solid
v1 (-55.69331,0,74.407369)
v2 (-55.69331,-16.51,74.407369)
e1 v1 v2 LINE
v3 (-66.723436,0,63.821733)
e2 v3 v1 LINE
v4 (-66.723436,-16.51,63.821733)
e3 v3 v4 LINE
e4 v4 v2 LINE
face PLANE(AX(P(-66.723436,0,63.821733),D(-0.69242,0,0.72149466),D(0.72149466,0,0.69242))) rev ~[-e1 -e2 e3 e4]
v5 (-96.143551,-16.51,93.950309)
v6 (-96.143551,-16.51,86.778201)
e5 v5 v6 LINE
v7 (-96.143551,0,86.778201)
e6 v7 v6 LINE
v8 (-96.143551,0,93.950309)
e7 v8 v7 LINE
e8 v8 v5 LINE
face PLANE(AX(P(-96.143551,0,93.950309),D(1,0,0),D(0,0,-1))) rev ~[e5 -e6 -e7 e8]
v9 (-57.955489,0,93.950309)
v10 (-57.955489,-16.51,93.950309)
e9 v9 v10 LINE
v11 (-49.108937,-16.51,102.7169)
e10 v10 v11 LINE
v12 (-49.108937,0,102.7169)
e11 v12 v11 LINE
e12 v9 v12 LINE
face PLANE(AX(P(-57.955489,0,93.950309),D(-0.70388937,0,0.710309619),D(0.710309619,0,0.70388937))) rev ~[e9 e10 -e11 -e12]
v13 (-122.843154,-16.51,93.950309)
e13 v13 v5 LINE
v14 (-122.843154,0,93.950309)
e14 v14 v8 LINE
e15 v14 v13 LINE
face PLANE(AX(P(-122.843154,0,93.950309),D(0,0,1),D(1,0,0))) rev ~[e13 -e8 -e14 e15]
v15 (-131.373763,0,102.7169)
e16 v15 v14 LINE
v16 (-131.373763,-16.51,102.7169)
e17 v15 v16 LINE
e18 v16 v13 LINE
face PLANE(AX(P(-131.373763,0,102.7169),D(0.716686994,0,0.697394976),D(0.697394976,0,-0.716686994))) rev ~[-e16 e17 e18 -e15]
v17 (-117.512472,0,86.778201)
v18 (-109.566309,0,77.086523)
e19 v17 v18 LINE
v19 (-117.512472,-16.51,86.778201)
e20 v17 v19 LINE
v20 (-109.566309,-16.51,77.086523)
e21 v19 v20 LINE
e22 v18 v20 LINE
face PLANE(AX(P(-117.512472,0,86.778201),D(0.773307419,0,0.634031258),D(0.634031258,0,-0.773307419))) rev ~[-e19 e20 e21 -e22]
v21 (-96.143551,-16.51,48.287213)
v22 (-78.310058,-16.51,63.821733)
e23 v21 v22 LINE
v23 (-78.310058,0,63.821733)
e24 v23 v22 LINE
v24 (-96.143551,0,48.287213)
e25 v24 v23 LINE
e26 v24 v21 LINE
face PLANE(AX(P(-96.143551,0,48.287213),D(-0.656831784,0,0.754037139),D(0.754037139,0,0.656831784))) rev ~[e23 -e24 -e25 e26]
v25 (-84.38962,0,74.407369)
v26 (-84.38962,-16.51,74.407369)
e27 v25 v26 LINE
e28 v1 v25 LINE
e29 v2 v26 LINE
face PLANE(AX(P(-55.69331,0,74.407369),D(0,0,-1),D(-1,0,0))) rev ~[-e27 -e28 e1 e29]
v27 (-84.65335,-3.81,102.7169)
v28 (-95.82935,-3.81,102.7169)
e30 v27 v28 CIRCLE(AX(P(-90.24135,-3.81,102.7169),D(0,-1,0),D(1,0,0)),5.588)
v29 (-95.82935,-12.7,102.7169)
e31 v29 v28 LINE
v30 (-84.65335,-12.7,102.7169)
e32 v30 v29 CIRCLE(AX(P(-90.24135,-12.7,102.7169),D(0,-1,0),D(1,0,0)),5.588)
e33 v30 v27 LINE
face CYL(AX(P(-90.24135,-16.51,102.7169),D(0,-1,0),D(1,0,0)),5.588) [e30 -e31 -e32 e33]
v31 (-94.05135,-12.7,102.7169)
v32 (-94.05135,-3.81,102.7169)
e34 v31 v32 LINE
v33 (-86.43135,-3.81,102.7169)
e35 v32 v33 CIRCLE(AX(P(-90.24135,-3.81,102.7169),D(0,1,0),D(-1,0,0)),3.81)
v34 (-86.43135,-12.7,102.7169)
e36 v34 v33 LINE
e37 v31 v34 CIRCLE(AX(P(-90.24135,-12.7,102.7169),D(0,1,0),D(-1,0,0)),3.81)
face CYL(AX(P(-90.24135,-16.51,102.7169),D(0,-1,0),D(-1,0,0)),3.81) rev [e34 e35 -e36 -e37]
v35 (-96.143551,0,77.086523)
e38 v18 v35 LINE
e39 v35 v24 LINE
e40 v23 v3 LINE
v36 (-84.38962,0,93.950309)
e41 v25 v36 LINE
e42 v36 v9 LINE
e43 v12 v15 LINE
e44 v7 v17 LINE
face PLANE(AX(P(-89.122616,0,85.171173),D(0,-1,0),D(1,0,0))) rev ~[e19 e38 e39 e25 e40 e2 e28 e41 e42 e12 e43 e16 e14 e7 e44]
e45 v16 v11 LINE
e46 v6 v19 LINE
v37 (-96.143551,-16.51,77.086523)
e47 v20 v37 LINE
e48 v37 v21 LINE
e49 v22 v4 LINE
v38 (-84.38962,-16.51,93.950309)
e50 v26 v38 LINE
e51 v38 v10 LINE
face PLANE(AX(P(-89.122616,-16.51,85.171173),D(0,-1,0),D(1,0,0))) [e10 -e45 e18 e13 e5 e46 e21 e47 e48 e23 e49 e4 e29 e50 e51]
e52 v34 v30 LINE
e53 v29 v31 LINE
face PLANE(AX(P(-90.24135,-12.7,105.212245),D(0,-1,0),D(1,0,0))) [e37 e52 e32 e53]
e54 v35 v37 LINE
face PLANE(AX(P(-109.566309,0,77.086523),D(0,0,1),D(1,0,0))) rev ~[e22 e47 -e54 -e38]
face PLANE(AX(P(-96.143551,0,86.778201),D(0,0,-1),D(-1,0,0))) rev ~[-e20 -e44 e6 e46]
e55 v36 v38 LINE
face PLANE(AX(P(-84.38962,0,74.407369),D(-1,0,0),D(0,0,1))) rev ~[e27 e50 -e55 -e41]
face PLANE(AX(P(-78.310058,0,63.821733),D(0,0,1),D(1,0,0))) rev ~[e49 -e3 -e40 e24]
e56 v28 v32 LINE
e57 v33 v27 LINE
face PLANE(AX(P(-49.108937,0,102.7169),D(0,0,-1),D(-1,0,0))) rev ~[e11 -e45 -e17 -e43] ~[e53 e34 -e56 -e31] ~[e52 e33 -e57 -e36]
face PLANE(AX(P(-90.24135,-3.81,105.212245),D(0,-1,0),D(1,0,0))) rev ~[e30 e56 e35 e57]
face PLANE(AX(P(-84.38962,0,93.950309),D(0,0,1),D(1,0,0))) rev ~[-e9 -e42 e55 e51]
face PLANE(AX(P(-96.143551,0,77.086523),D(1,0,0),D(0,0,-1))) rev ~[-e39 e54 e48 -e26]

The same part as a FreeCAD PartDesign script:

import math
import FreeCAD as App
import Part
import Sketcher
Q = App.Units.Quantity

doc = App.newDocument("Part")
body = doc.addObject("PartDesign::Body", "Body")

# Sketch on XZ plane
sketch1 = doc.addObject("Sketcher::SketchObject", "Sketch")
body.addObject(sketch1)
sketch1.AttachmentSupport = (doc.XZ_Plane, [""])
sketch1.MapMode = "FlatFace"
sketch1.addGeometry(Part.LineSegment(App.Vector(-49.108937, 102.7169, 0), App.Vector(-131.373763, 102.7169, 0)), False)
sketch1.addGeometry(Part.LineSegment(App.Vector(-131.373763, 102.7169, 0), App.Vector(-122.843154, 93.950309, 0)), False)
sketch1.addGeometry(Part.LineSegment(App.Vector(-122.843154, 93.950309, 0), App.Vector(-96.143551, 93.950309, 0)), False)
sketch1.addGeometry(Part.LineSegment(App.Vector(-96.143551, 93.950309, 0), App.Vector(-96.143551, 86.778201, 0)), False)
sketch1.addGeometry(Part.LineSegment(App.Vector(-96.143551, 86.778201, 0), App.Vector(-117.512472, 86.778201, 0)), False)
sketch1.addGeometry(Part.LineSegment(App.Vector(-117.512472, 86.778201, 0), App.Vector(-109.566309, 77.086523, 0)), False)
sketch1.addGeometry(Part.LineSegment(App.Vector(-109.566309, 77.086523, 0), App.Vector(-96.143551, 77.086523, 0)), False)
sketch1.addGeometry(Part.LineSegment(App.Vector(-96.143551, 77.086523, 0), App.Vector(-96.143551, 48.287213, 0)), False)
sketch1.addGeometry(Part.LineSegment(App.Vector(-96.143551, 48.287213, 0), App.Vector(-78.310058, 63.821733, 0)), False)
sketch1.addGeometry(Part.LineSegment(App.Vector(-78.310058, 63.821733, 0), App.Vector(-66.723436, 63.821733, 0)), False)
sketch1.addGeometry(Part.LineSegment(App.Vector(-66.723436, 63.821733, 0), App.Vector(-55.69331, 74.407369, 0)), False)
sketch1.addGeometry(Part.LineSegment(App.Vector(-55.69331, 74.407369, 0), App.Vector(-84.38962, 74.407369, 0)), False)
sketch1.addGeometry(Part.LineSegment(App.Vector(-84.38962, 74.407369, 0), App.Vector(-84.38962, 93.950309, 0)), False)
sketch1.addGeometry(Part.LineSegment(App.Vector(-84.38962, 93.950309, 0), App.Vector(-57.955489, 93.950309, 0)), False)
sketch1.addGeometry(Part.LineSegment(App.Vector(-57.955489, 93.950309, 0), App.Vector(-49.108937, 102.7169, 0)), False)
sketch1.addConstraint(Sketcher.Constraint("Coincident", 0, 2, 1, 1))
sketch1.addConstraint(Sketcher.Constraint("Coincident", 1, 2, 2, 1))
sketch1.addConstraint(Sketcher.Constraint("Coincident", 2, 2, 3, 1))
sketch1.addConstraint(Sketcher.Constraint("Coincident", 3, 2, 4, 1))
sketch1.addConstraint(Sketcher.Constraint("Coincident", 4, 2, 5, 1))
sketch1.addConstraint(Sketcher.Constraint("Coincident", 5, 2, 6, 1))
sketch1.addConstraint(Sketcher.Constraint("Coincident", 6, 2, 7, 1))
sketch1.addConstraint(Sketcher.Constraint("Coincident", 7, 2, 8, 1))
sketch1.addConstraint(Sketcher.Constraint("Coincident", 8, 2, 9, 1))
sketch1.addConstraint(Sketcher.Constraint("Coincident", 9, 2, 10, 1))
sketch1.addConstraint(Sketcher.Constraint("Coincident", 10, 2, 11, 1))
sketch1.addConstraint(Sketcher.Constraint("Coincident", 11, 2, 12, 1))
sketch1.addConstraint(Sketcher.Constraint("Coincident", 12, 2, 13, 1))
sketch1.addConstraint(Sketcher.Constraint("Coincident", 13, 2, 14, 1))
sketch1.addConstraint(Sketcher.Constraint("Coincident", 14, 2, 0, 1))
sketch1.addConstraint(Sketcher.Constraint("Horizontal", 0))
sketch1.addConstraint(Sketcher.Constraint("Horizontal", 2))
sketch1.addConstraint(Sketcher.Constraint("Vertical", 3))
sketch1.addConstraint(Sketcher.Constraint("Horizontal", 4))
sketch1.addConstraint(Sketcher.Constraint("Horizontal", 6))
sketch1.addConstraint(Sketcher.Constraint("Vertical", 7))
sketch1.addConstraint(Sketcher.Constraint("Horizontal", 9))
sketch1.addConstraint(Sketcher.Constraint("Horizontal", 11))
sketch1.addConstraint(Sketcher.Constraint("Vertical", 12))
sketch1.addConstraint(Sketcher.Constraint("Horizontal", 13))
sketch1.addConstraint(Sketcher.Constraint("Horizontal", 2, 2, 12, 2))
sketch1.addConstraint(Sketcher.Constraint("Vertical", 3, 2, 6, 2))
sketch1.addConstraint(Sketcher.Constraint("Distance", 14, Q("12.454501 mm")))
sketch1.addConstraint(Sketcher.Constraint("DistanceX", 4, 2, 4, 1, Q("21.368921 mm")))
sketch1.addConstraint(Sketcher.Constraint("DistanceX", 6, 1, 6, 2, Q("13.422758 mm")))
sketch1.addConstraint(Sketcher.Constraint("DistanceX", 9, 1, 9, 2, Q("11.586622 mm")))
sketch1.addConstraint(Sketcher.Constraint("DistanceX", 11, 2, 11, 1, Q("28.69631 mm")))
sketch1.addConstraint(Sketcher.Constraint("DistanceX", 13, 1, 13, 2, Q("26.434131 mm")))
sketch1.addConstraint(Sketcher.Constraint("DistanceY", 3, 2, 3, 1, Q("7.172108 mm")))
sketch1.addConstraint(Sketcher.Constraint("DistanceY", 7, 2, 7, 1, Q("28.79931 mm")))
sketch1.addConstraint(Sketcher.Constraint("DistanceY", 12, 1, 12, 2, Q("19.54294 mm")))
sketch1.addConstraint(Sketcher.Constraint("DistanceY", -1, 1, 0, 2, Q("102.7169 mm")))
sketch1.addConstraint(Sketcher.Constraint("DistanceY", -1, 1, 3, 2, Q("86.778201 mm")))
sketch1.addConstraint(Sketcher.Constraint("DistanceX", 9, 2, 14, 2, Q("17.614499 mm")))
sketch1.addConstraint(Sketcher.Constraint("DistanceX", 0, 2, 0, 1, Q("82.264826 mm")))
sketch1.addConstraint(Sketcher.Constraint("DistanceX", 2, 1, 2, 2, Q("26.699603 mm")))
sketch1.addConstraint(Sketcher.Constraint("DistanceX", 2, 2, -1, 1, Q("96.143551 mm")))
sketch1.addConstraint(Sketcher.Constraint("DistanceX", 8, 2, -1, 1, Q("78.310058 mm")))
sketch1.addConstraint(Sketcher.Constraint("DistanceY", 8, 2, 6, 2, Q("13.26479 mm")))
sketch1.addConstraint(Sketcher.Constraint("Distance", 5, Q("12.532762 mm")))
pad1 = doc.addObject("PartDesign::Pad", "Pad")
body.addObject(pad1)
pad1.Profile = sketch1
pad1.Length = Q("0.65 in")

# Sketch on XZ plane
sketch2 = doc.addObject("Sketcher::SketchObject", "Sketch001")
body.addObject(sketch2)
sketch2.AttachmentSupport = (doc.XZ_Plane, [""])
sketch2.MapMode = "FlatFace"
sketch2.AttachmentOffset = App.Placement(App.Vector(0, 0, 0.65 * 25.4), App.Rotation())
sketch2.addGeometry(Part.ArcOfCircle(Part.Circle(App.Vector(-90.24135, 102.7169, 0), App.Vector(0, 0, 1), 3.81), math.radians(0), math.radians(180)), False)
sketch2.addGeometry(Part.LineSegment(App.Vector(-86.43135, 102.7169, 0), App.Vector(-84.65335, 102.7169, 0)), False)
sketch2.addGeometry(Part.ArcOfCircle(Part.Circle(App.Vector(-90.24135, 102.7169, 0), App.Vector(0, 0, 1), 5.588), math.radians(0), math.radians(180)), False)
sketch2.addGeometry(Part.LineSegment(App.Vector(-95.82935, 102.7169, 0), App.Vector(-94.05135, 102.7169, 0)), False)
sketch2.addConstraint(Sketcher.Constraint("Coincident", 0, 1, 1, 1))
sketch2.addConstraint(Sketcher.Constraint("Coincident", 1, 2, 2, 1))
sketch2.addConstraint(Sketcher.Constraint("Coincident", 2, 2, 3, 1))
sketch2.addConstraint(Sketcher.Constraint("Coincident", 3, 2, 0, 2))
sketch2.addConstraint(Sketcher.Constraint("Horizontal", 1))
sketch2.addConstraint(Sketcher.Constraint("Horizontal", 3))
sketch2.addConstraint(Sketcher.Constraint("Coincident", 2, 3, 0, 3))
sketch2.addConstraint(Sketcher.Constraint("Horizontal", 2, 3, 0, 1))
sketch2.addConstraint(Sketcher.Constraint("Horizontal", 1, 2, 2, 2))
sketch2.addConstraint(Sketcher.Constraint("Radius", 0, Q("0.15 in")))
sketch2.addConstraint(Sketcher.Constraint("Radius", 2, Q("0.22 in")))
sketch2.addConstraint(Sketcher.Constraint("DistanceY", -1, 1, 0, 3, Q("102.7169 mm")))
sketch2.addConstraint(Sketcher.Constraint("DistanceX", 0, 3, -1, 1, Q("90.24135 mm")))
pad2 = doc.addObject("PartDesign::Pad", "Pad001")
body.addObject(pad2)
pad2.Profile = sketch2
pad2.Length = Q("0.5 in")
pad2.Reversed = True

# Sketch on XZ plane
sketch3 = doc.addObject("Sketcher::SketchObject", "Sketch002")
body.addObject(sketch3)
sketch3.AttachmentSupport = (doc.XZ_Plane, [""])
sketch3.MapMode = "FlatFace"
sketch3.AttachmentOffset = App.Placement(App.Vector(0, 0, 0.65 * 25.4), App.Rotation())
sketch3.addGeometry(Part.LineSegment(App.Vector(-86.43135, 102.7169, 0), App.Vector(-84.65335, 102.7169, 0)), False)
sketch3.addGeometry(Part.ArcOfCircle(Part.Circle(App.Vector(-90.24135, 102.7169, 0), App.Vector(0, 0, 1), 5.588), math.radians(0), math.radians(180)), False)
sketch3.addGeometry(Part.LineSegment(App.Vector(-95.82935, 102.7169, 0), App.Vector(-94.05135, 102.7169, 0)), False)
sketch3.addGeometry(Part.ArcOfCircle(Part.Circle(App.Vector(-90.24135, 102.7169, 0), App.Vector(0, 0, 1), 3.81), math.radians(0), math.radians(180)), False)
sketch3.addConstraint(Sketcher.Constraint("Coincident", 0, 2, 1, 1))
sketch3.addConstraint(Sketcher.Constraint("Coincident", 1, 2, 2, 1))
sketch3.addConstraint(Sketcher.Constraint("Coincident", 2, 2, 3, 2))
sketch3.addConstraint(Sketcher.Constraint("Coincident", 3, 1, 0, 1))
sketch3.addConstraint(Sketcher.Constraint("Horizontal", 0))
sketch3.addConstraint(Sketcher.Constraint("Horizontal", 2))
sketch3.addConstraint(Sketcher.Constraint("Coincident", 3, 3, 1, 3))
sketch3.addConstraint(Sketcher.Constraint("Horizontal", 3, 3, 0, 2))
sketch3.addConstraint(Sketcher.Constraint("Horizontal", 0, 2, 1, 2))
sketch3.addConstraint(Sketcher.Constraint("Radius", 1, Q("0.22 in")))
sketch3.addConstraint(Sketcher.Constraint("Radius", 3, Q("0.15 in")))
sketch3.addConstraint(Sketcher.Constraint("DistanceY", -1, 1, 1, 3, Q("102.7169 mm")))
sketch3.addConstraint(Sketcher.Constraint("DistanceX", 1, 3, -1, 1, Q("90.24135 mm")))
pocket1 = doc.addObject("PartDesign::Pocket", "Pocket")
body.addObject(pocket1)
pocket1.Profile = sketch3
pocket1.Length = Q("0.15 in")

doc.recompute()
